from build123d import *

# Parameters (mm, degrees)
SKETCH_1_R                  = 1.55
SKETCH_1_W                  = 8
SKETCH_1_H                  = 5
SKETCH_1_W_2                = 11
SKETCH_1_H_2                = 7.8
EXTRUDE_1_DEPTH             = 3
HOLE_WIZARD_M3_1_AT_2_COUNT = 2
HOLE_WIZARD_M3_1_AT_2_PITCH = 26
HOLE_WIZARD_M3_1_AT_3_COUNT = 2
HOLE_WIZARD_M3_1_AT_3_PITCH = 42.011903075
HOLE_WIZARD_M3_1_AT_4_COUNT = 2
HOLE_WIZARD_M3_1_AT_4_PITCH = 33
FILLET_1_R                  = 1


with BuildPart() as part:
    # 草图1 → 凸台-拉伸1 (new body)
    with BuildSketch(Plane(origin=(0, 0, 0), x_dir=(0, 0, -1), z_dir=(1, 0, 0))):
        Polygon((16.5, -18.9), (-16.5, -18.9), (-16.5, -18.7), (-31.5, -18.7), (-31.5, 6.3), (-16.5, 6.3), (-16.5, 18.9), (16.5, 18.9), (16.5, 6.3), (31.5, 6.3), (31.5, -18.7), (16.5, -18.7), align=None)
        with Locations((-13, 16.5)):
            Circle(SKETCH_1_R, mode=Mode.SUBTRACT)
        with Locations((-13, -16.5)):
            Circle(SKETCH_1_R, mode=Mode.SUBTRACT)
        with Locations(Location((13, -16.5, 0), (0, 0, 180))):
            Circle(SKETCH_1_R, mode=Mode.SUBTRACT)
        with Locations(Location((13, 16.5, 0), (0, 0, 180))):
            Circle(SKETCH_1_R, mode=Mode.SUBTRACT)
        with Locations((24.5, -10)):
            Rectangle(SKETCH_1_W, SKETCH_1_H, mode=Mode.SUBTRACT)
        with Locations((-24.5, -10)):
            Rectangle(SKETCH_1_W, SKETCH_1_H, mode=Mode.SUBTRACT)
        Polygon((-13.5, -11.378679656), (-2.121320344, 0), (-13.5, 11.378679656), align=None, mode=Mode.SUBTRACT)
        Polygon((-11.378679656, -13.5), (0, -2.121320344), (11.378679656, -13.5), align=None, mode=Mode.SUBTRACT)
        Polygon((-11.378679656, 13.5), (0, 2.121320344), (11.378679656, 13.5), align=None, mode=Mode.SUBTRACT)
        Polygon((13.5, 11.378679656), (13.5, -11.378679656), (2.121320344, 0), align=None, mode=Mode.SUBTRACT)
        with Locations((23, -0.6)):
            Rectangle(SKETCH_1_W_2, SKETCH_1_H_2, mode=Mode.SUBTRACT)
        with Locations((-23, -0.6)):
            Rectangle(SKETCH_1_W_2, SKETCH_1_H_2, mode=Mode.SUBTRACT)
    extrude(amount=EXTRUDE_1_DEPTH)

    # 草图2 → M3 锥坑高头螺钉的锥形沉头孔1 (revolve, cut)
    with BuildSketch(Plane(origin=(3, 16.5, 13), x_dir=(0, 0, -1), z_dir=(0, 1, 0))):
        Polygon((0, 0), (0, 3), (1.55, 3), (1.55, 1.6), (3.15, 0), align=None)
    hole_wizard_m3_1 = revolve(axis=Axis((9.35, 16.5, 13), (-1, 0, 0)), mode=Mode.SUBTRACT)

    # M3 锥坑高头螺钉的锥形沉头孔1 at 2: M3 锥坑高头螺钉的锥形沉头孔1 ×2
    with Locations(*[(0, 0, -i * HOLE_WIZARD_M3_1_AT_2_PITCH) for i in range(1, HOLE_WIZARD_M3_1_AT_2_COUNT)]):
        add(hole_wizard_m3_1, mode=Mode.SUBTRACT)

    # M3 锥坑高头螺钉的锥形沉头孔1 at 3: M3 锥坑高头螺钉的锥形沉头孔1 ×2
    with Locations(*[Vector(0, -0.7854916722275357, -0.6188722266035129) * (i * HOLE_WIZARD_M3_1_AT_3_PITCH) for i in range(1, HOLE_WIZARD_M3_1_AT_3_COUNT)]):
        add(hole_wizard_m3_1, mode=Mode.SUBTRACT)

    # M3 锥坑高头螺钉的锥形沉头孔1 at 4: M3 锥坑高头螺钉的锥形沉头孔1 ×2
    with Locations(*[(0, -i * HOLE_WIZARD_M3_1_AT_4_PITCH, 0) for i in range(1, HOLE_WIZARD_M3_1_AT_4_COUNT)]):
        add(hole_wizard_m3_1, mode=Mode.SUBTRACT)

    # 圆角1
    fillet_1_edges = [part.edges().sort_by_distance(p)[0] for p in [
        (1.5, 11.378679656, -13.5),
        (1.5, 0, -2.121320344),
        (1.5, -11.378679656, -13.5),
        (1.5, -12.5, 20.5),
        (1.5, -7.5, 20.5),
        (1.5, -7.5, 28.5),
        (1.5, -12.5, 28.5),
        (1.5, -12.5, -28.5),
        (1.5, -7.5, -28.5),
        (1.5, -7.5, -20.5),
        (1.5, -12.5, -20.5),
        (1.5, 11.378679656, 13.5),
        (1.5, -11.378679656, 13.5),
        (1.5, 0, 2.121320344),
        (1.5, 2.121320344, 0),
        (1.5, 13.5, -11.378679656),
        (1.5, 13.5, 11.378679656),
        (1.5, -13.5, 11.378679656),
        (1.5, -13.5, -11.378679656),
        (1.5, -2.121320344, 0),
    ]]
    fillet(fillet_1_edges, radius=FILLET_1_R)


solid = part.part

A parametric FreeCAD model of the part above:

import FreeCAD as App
import Part
import Sketcher

V = App.Vector
Q = App.Units.Quantity


def edges_at(feature, points):
    """Names of the edges that pass closest to the given points."""
    edges = feature.Shape.Edges
    near = lambda p: min(range(len(edges)), key=lambda i: edges[i].distToShape(Part.Vertex(*p))[0])
    return sorted({f"Edge{near(p) + 1}" for p in points})

doc = App.newDocument("Part")
body = doc.addObject("PartDesign::Body", "Body")

# Sketch on YZ plane
sketch1 = body.newObject("Sketcher::SketchObject", "Sketch")
sketch1.AttachmentSupport = (doc.getObject("YZ_Plane"), [""])
sketch1.MapMode = "FlatFace"
sketch1.addGeometry([
    Part.LineSegment(V(-18.9, 16.5, 0), V(-18.9, -16.5, 0)),  # 0
    Part.LineSegment(V(-18.9, -16.5, 0), V(-18.7, -16.5, 0)),  # 1
    Part.LineSegment(V(-18.7, -16.5, 0), V(-18.7, -31.5, 0)),  # 2
    Part.LineSegment(V(-18.7, -31.5, 0), V(6.3, -31.5, 0)),  # 3
    Part.LineSegment(V(6.3, -31.5, 0), V(6.3, -16.5, 0)),  # 4
    Part.LineSegment(V(6.3, -16.5, 0), V(18.9, -16.5, 0)),  # 5
    Part.LineSegment(V(18.9, -16.5, 0), V(18.9, 16.5, 0)),  # 6
    Part.LineSegment(V(18.9, 16.5, 0), V(6.3, 16.5, 0)),  # 7
    Part.LineSegment(V(6.3, 16.5, 0), V(6.3, 31.5, 0)),  # 8
    Part.LineSegment(V(6.3, 31.5, 0), V(-18.7, 31.5, 0)),  # 9
    Part.LineSegment(V(-18.7, 31.5, 0), V(-18.7, 16.5, 0)),  # 10
    Part.LineSegment(V(-18.7, 16.5, 0), V(-18.9, 16.5, 0)),  # 11
    Part.LineSegment(V(-12.5, -20.5, 0), V(-7.5, -20.5, 0)),  # 12
    Part.LineSegment(V(-7.5, -20.5, 0), V(-7.5, -28.5, 0)),  # 13
    Part.LineSegment(V(-7.5, -28.5, 0), V(-12.5, -28.5, 0)),  # 14
    Part.LineSegment(V(-12.5, -28.5, 0), V(-12.5, -20.5, 0)),  # 15
    Part.Circle(V(-16.5, -13, 0), V(0, 0, 1), 1.55),  # 16
    Part.LineSegment(V(-4.5, -17.5, 0), V(3.3, -17.5, 0)),  # 17
    Part.LineSegment(V(3.3, -17.5, 0), V(3.3, -28.5, 0)),  # 18
    Part.LineSegment(V(3.3, -28.5, 0), V(-4.5, -28.5, 0)),  # 19
    Part.LineSegment(V(-4.5, -28.5, 0), V(-4.5, -17.5, 0)),  # 20
    Part.LineSegment(V(11.38, -13.5, 0), V(-11.38, -13.5, 0)),  # 21
    Part.LineSegment(V(-11.38, -13.5, 0), V(0, -2.12, 0)),  # 22
    Part.LineSegment(V(0, -2.12, 0), V(11.38, -13.5, 0)),  # 23
    Part.Circle(V(-16.5, 13, 0), V(0, 0, 1), 1.55),  # 24
    Part.LineSegment(V(-12.5, 28.5, 0), V(-7.5, 28.5, 0)),  # 25
    Part.LineSegment(V(-7.5, 28.5, 0), V(-7.5, 20.5, 0)),  # 26
    Part.LineSegment(V(-7.5, 20.5, 0), V(-12.5, 20.5, 0)),  # 27
    Part.LineSegment(V(-12.5, 20.5, 0), V(-12.5, 28.5, 0)),  # 28
    Part.LineSegment(V(-13.5, 11.38, 0), V(-2.12, 0, 0)),  # 29
    Part.LineSegment(V(-2.12, 0, 0), V(-13.5, -11.38, 0)),  # 30
    Part.LineSegment(V(-13.5, -11.38, 0), V(-13.5, 11.38, 0)),  # 31
    Part.LineSegment(V(-11.38, 13.5, 0), V(11.38, 13.5, 0)),  # 32
    Part.LineSegment(V(11.38, 13.5, 0), V(0, 2.12, 0)),  # 33
    Part.LineSegment(V(0, 2.12, 0), V(-11.38, 13.5, 0)),  # 34
    Part.LineSegment(V(-4.5, 28.5, 0), V(3.3, 28.5, 0)),  # 35
    Part.LineSegment(V(3.3, 28.5, 0), V(3.3, 17.5, 0)),  # 36
    Part.LineSegment(V(3.3, 17.5, 0), V(-4.5, 17.5, 0)),  # 37
    Part.LineSegment(V(-4.5, 17.5, 0), V(-4.5, 28.5, 0)),  # 38
    Part.Circle(V(16.5, -13, 0), V(0, 0, 1), 1.55),  # 39
    Part.LineSegment(V(13.5, 11.38, 0), V(13.5, -11.38, 0)),  # 40
    Part.LineSegment(V(13.5, -11.38, 0), V(2.12, 0, 0)),  # 41
    Part.LineSegment(V(2.12, 0, 0), V(13.5, 11.38, 0)),  # 42
    Part.Circle(V(16.5, 13, 0), V(0, 0, 1), 1.55),  # 43
], False)
sketch1.addConstraint([
    Sketcher.Constraint("Coincident", 0, 2, 1, 1),
    Sketcher.Constraint("Coincident", 1, 2, 2, 1),
    Sketcher.Constraint("Coincident", 2, 2, 3, 1),
    Sketcher.Constraint("Coincident", 3, 2, 4, 1),
    Sketcher.Constraint("Coincident", 4, 2, 5, 1),
    Sketcher.Constraint("Coincident", 5, 2, 6, 1),
    Sketcher.Constraint("Coincident", 6, 2, 7, 1),
    Sketcher.Constraint("Coincident", 7, 2, 8, 1),
    Sketcher.Constraint("Coincident", 8, 2, 9, 1),
    Sketcher.Constraint("Coincident", 9, 2, 10, 1),
    Sketcher.Constraint("Coincident", 10, 2, 11, 1),
    Sketcher.Constraint("Coincident", 11, 2, 0, 1),
    Sketcher.Constraint("Coincident", 12, 2, 13, 1),
    Sketcher.Constraint("Coincident", 13, 2, 14, 1),
    Sketcher.Constraint("Coincident", 14, 2, 15, 1),
    Sketcher.Constraint("Coincident", 15, 2, 12, 1),
    Sketcher.Constraint("Coincident", 17, 2, 18, 1),
    Sketcher.Constraint("Coincident", 18, 2, 19, 1),
    Sketcher.Constraint("Coincident", 19, 2, 20, 1),
    Sketcher.Constraint("Coincident", 20, 2, 17, 1),
    Sketcher.Constraint("Coincident", 21, 2, 22, 1),
    Sketcher.Constraint("Coincident", 22, 2, 23, 1),
    Sketcher.Constraint("Coincident", 23, 2, 21, 1),
    Sketcher.Constraint("Coincident", 25, 2, 26, 1),
    Sketcher.Constraint("Coincident", 26, 2, 27, 1),
    Sketcher.Constraint("Coincident", 27, 2, 28, 1),
    Sketcher.Constraint("Coincident", 28, 2, 25, 1),
    Sketcher.Constraint("Coincident", 29, 2, 30, 1),
    Sketcher.Constraint("Coincident", 30, 2, 31, 1),
    Sketcher.Constraint("Coincident", 31, 2, 29, 1),
    Sketcher.Constraint("Coincident", 32, 2, 33, 1),
    Sketcher.Constraint("Coincident", 33, 2, 34, 1),
    Sketcher.Constraint("Coincident", 34, 2, 32, 1),
    Sketcher.Constraint("Coincident", 35, 2, 36, 1),
    Sketcher.Constraint("Coincident", 36, 2, 37, 1),
    Sketcher.Constraint("Coincident", 37, 2, 38, 1),
    Sketcher.Constraint("Coincident", 38, 2, 35, 1),
    Sketcher.Constraint("Coincident", 40, 2, 41, 1),
    Sketcher.Constraint("Coincident", 41, 2, 42, 1),
    Sketcher.Constraint("Coincident", 42, 2, 40, 1),
    Sketcher.Constraint("Vertical", 0),
    Sketcher.Constraint("Horizontal", 1),
    Sketcher.Constraint("Vertical", 2),
    Sketcher.Constraint("Horizontal", 3),
    Sketcher.Constraint("Vertical", 4),
    Sketcher.Constraint("Horizontal", 5),
    Sketcher.Constraint("Vertical", 6),
    Sketcher.Constraint("Horizontal", 7),
    Sketcher.Constraint("Vertical", 8),
    Sketcher.Constraint("Horizontal", 9),
    Sketcher.Constraint("Vertical", 10),
    Sketcher.Constraint("Horizontal", 11),
    Sketcher.Constraint("Horizontal", 12),
    Sketcher.Constraint("Vertical", 13),
    Sketcher.Constraint("Horizontal", 14),
    Sketcher.Constraint("Vertical", 15),
    Sketcher.Constraint("Horizontal", 17),
    Sketcher.Constraint("Vertical", 18),
    Sketcher.Constraint("Horizontal", 19),
    Sketcher.Constraint("Vertical", 20),
    Sketcher.Constraint("Horizontal", 21),
    Sketcher.Constraint("Horizontal", 25),
    Sketcher.Constraint("Vertical", 26),
    Sketcher.Constraint("Horizontal", 27),
    Sketcher.Constraint("Vertical", 28),
    Sketcher.Constraint("Vertical", 31),
    Sketcher.Constraint("Horizontal", 32),
    Sketcher.Constraint("Horizontal", 35),
    Sketcher.Constraint("Vertical", 36),
    Sketcher.Constraint("Horizontal", 37),
    Sketcher.Constraint("Vertical", 38),
    Sketcher.Constraint("Vertical", 40),
    Sketcher.Constraint("Equal", 16, 24),
    Sketcher.Constraint("Equal", 24, 39),
    Sketcher.Constraint("Equal", 39, 43),
    Sketcher.Constraint("Symmetric", 24, 3, 39, 3, -1, 1),
    Sketcher.Constraint("Symmetric", 16, 3, 43, 3, -1, 1),
    Sketcher.Constraint("Symmetric", 0, 2, 6, 2, -1, 1),
    Sketcher.Constraint("Symmetric", 21, 2, 32, 2, -1, 1),
    Sketcher.Constraint("Symmetric", 22, 2, 33, 2, -1, 1),
    Sketcher.Constraint("Symmetric", 31, 2, 40, 2, -1, 1),
    Sketcher.Constraint("Symmetric", 29, 2, 41, 2, -1, 1),
    Sketcher.Constraint("Symmetric", 16, 3, 39, 3, -2),
    Sketcher.Constraint("Symmetric", 4, 2, 7, 2, -1),
    Sketcher.Constraint("Symmetric", 2, 2, 9, 2, -1),
    Sketcher.Constraint("Symmetric", 13, 2, 25, 2, -1),
    Sketcher.Constraint("Symmetric", 15, 2, 27, 2, -1),
    Sketcher.Constraint("Symmetric", 18, 2, 35, 2, -1),
    Sketcher.Constraint("Symmetric", 20, 2, 37, 2, -1),
    Sketcher.Constraint("PointOnObject", 22, 2, -2),
    Sketcher.Constraint("PointOnObject", 29, 2, -1),
    Sketcher.Constraint("Perpendicular", 22, 23),
    Sketcher.Constraint("Parallel", 23, 29),
    Sketcher.Constraint("Perpendicular", 29, 30),
    Sketcher.Constraint("Perpendicular", 33, 34),
    Sketcher.Constraint("Perpendicular", 41, 42),
    Sketcher.Constraint("Horizontal", 7, 2, 10, 2),
    Sketcher.Constraint("Horizontal", 14, 2, 18, 2),
    Sketcher.Constraint("Horizontal", 30, 2, 40, 2),
    Sketcher.Constraint("Equal", 32, 31),
    Sketcher.Constraint("Diameter", 16, 3.1),
    Sketcher.Constraint("DistanceX", 3, 1, 3, 2, 25.0),
    Sketcher.Constraint("DistanceX", 12, 1, 12, 2, 5.0),
    Sketcher.Constraint("DistanceY", 0, 2, 0, 1, 33.0),
    Sketcher.Constraint("DistanceY", 2, 2, 2, 1, 15.0),
    Sketcher.Constraint("DistanceY", 13, 2, 13, 1, 8.0),
    Sketcher.Constraint("DistanceY", 18, 2, 18, 1, 11.0),
    Sketcher.Constraint("DistanceX", 1, 1, 1, 2, 0.2),
    Sketcher.Constraint("DistanceX", 5, 1, 5, 2, 12.6),
    Sketcher.Constraint("DistanceX", 17, 1, 17, 2, 7.8),
    Sketcher.Constraint("DistanceY", 16, 3, -1, 1, 13.0),
    Sketcher.Constraint("DistanceX", 16, 3, 39, 3, 33.0),
    Sketcher.Constraint("DistanceX", 16, 3, 12, 2, 9.0),
    Sketcher.Constraint("DistanceY", 12, 2, 1, 2, 4.0),
    Sketcher.Constraint("DistanceX", 17, 2, 4, 2, 3.0),
    Sketcher.Constraint("DistanceY", 15, 2, 21, 2, 7.0),
    Sketcher.Constraint("DistanceX", 16, 3, 30, 2, 3.0),
    Sketcher.Constraint("DistanceX", 21, 2, 21, 1, 22.757359),
])
pad1 = body.newObject("PartDesign::Pad", "Pad")
pad1.Profile = sketch1
pad1.Length = 3

# Sketch on XZ plane
sketch2 = body.newObject("Sketcher::SketchObject", "Sketch001")
sketch2.AttachmentSupport = (doc.getObject("XZ_Plane"), [""])
sketch2.MapMode = "FlatFace"
sketch2.AttachmentOffset = App.Placement(V(0, 0, -16.5), App.Rotation())
sketch2.addGeometry([
    Part.LineSegment(V(0, 13, 0), V(3, 13, 0)),  # 0
    Part.LineSegment(V(3, 13, 0), V(3, 9.8, 0)),  # 1
    Part.LineSegment(V(3, 9.8, 0), V(1.4, 11.4, 0)),  # 2
    Part.LineSegment(V(1.4, 11.4, 0), V(0, 11.4, 0)),  # 3
    Part.LineSegment(V(0, 11.4, 0), V(0, 13, 0)),  # 4
], False)
sketch2.addGeometry(Part.LineSegment(V(3, 13, 0), V(0, 13, 0)), True)  # axis
sketch2.addConstraint([
    Sketcher.Constraint("Coincident", 0, 2, 1, 1),
    Sketcher.Constraint("Coincident", 1, 2, 2, 1),
    Sketcher.Constraint("Coincident", 2, 2, 3, 1),
    Sketcher.Constraint("Coincident", 3, 2, 4, 1),
    Sketcher.Constraint("Coincident", 4, 2, 0, 1),
    Sketcher.Constraint("Horizontal", 0),
    Sketcher.Constraint("Vertical", 1),
    Sketcher.Constraint("Horizontal", 3),
    Sketcher.Constraint("Vertical", 4),
    Sketcher.Constraint("Horizontal", 5),
    Sketcher.Constraint("Coincident", 5, 1, 0, 2),
    Sketcher.Constraint("PointOnObject", 3, 2, -2),
    Sketcher.Constraint("PointOnObject", 5, 2, -2),
    Sketcher.Constraint("DistanceX", 0, 1, 0, 2, 3.0),
    Sketcher.Constraint("Angle", 2, Q("135 deg")),
    Sketcher.Constraint("DistanceX", 3, 2, 3, 1, 1.4),
    Sketcher.Constraint("DistanceY", -1, 1, 0, 2, 13.0),
    Sketcher.Constraint("DistanceY", 1, 2, 1, 1, 3.15),
])
groove = body.newObject("PartDesign::Groove", "Groove")
groove.Profile = sketch2
groove.ReferenceAxis = (sketch2, ["Axis0"])
groove.Angle = 360
doc.recompute()

linearpattern = body.newObject("PartDesign::LinearPattern", "LinearPattern")
linearpattern.Originals = [groove]
linearpattern.Direction = (doc.getObject("Z_Axis"), [""])
linearpattern.Mode = "offset"
linearpattern.Offset = 26
linearpattern.Occurrences = 2
linearpattern.Reversed = True
body.Tip = linearpattern
doc.recompute()

datumline = body.newObject("PartDesign::Line", "DatumLine")
datumline.Placement = App.Placement(V(0, 0, 0), App.Rotation(V(0, 0, 1), V(0, -0.785491672, -0.618872227)))
linearpattern2 = body.newObject("PartDesign::LinearPattern", "LinearPattern001")
linearpattern2.Originals = [groove]
linearpattern2.Direction = (datumline, [""])
linearpattern2.Mode = "offset"
linearpattern2.Offset = 42.011903
linearpattern2.Occurrences = 2
body.Tip = linearpattern2
doc.recompute()

linearpattern3 = body.newObject("PartDesign::LinearPattern", "LinearPattern002")
linearpattern3.Originals = [groove]
linearpattern3.Direction = (doc.getObject("Y_Axis"), [""])
linearpattern3.Mode = "offset"
linearpattern3.Offset = 33
linearpattern3.Occurrences = 2
linearpattern3.Reversed = True
body.Tip = linearpattern3
doc.recompute()

fillet = body.newObject("PartDesign::Fillet", "Fillet")
fillet.Base = (linearpattern3, edges_at(linearpattern3, [
    (1.5, 11.379, -13.5),
    (1.5, 0, -2.121),
    (1.5, -11.379, -13.5),
    (1.5, -12.5, 20.5),
    (1.5, -7.5, 20.5),
    (1.5, -7.5, 28.5),
    (1.5, -12.5, 28.5),
    (1.5, -12.5, -28.5),
    (1.5, -7.5, -28.5),
    (1.5, -7.5, -20.5),
    (1.5, -12.5, -20.5),
    (1.5, 11.379, 13.5),
    (1.5, -11.379, 13.5),
    (1.5, 0, 2.121),
    (1.5, 2.121, 0),
    (1.5, 13.5, -11.379),
    (1.5, 13.5, 11.379),
    (1.5, -13.5, 11.379),
    (1.5, -13.5, -11.379),
    (1.5, -2.121, 0),
]))
fillet.Radius = 1

doc.recompute()
